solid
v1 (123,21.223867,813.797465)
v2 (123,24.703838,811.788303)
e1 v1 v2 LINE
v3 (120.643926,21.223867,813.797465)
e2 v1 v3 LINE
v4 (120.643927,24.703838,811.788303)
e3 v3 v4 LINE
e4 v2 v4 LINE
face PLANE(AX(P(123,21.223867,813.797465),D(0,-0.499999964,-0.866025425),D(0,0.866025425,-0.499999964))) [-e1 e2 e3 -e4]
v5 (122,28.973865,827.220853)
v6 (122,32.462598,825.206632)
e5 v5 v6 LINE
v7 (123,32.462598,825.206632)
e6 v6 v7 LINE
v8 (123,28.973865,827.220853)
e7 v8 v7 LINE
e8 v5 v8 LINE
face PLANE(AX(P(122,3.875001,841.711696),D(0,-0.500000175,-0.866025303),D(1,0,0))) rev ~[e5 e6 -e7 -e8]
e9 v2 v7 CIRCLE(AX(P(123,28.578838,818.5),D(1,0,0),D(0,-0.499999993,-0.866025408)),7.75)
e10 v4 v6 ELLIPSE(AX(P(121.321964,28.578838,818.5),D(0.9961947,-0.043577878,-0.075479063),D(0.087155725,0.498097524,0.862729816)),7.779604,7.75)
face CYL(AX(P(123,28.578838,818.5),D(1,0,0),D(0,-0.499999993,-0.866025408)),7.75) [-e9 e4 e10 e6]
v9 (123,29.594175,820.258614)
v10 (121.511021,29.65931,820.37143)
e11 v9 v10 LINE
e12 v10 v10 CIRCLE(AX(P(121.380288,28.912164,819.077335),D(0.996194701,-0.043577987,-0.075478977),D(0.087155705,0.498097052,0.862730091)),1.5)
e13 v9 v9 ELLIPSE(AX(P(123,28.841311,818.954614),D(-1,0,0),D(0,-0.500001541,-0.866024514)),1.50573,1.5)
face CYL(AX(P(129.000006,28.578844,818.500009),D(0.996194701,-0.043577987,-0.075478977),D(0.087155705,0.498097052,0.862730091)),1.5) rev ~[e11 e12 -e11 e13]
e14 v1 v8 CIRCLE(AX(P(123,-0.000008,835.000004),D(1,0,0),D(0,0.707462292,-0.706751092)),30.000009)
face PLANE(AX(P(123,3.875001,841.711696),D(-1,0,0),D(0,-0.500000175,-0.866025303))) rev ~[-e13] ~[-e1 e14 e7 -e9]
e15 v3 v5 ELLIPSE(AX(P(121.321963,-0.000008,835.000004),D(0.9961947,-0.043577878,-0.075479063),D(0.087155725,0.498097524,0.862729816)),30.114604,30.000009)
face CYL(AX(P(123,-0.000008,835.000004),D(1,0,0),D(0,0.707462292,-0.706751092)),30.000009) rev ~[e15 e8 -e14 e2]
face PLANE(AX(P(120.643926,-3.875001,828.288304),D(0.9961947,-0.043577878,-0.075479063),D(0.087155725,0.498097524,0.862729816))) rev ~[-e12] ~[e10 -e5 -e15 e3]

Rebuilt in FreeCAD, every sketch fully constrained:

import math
import FreeCAD as App
import Part
import Sketcher
from FreeCAD import Vector
Q = App.Units.Quantity


def add_polygon(sketch, points):
    """Adds a closed chain of lines whose ends are joined by coincident constraints."""
    first, n = sketch.GeometryCount, len(points)
    for a, b in zip(points, points[1:] + points[:1]):
        sketch.addGeometry(Part.LineSegment(App.Vector(*a, 0), App.Vector(*b, 0)), False)
    for i in range(n):
        sketch.addConstraint(Sketcher.Constraint("Coincident", first + i, 2, first + (i + 1) % n, 1))

doc = App.newDocument("Part")
body = doc.addObject("PartDesign::Body", "Body")

# Sketch on an angled plane
sketch1 = body.newObject("Sketcher::SketchObject", "Sketch")
sketch1.Placement = App.Placement(Vector(6, 0, 0), App.Rotation(Vector(1, 0, 0), Vector(0, 0.500000175, 0.866025303), Vector(0, -0.866025303, 0.500000175), "ZXY"))
add_polygon(sketch1, [(-6, -7.8), (-6, 7.8), (-7, 7.8), (-8.4, -7.8)])  # lines 0-3
sketch1.addConstraint(Sketcher.Constraint("Vertical", 0))
sketch1.addConstraint(Sketcher.Constraint("Horizontal", 1))
sketch1.addConstraint(Sketcher.Constraint("Horizontal", 3))
sketch1.addConstraint(Sketcher.Constraint("DistanceX", 1, 2, 1, 1, Q("1 mm")))
sketch1.addConstraint(Sketcher.Constraint("Angle", 2, Q("-94.999999 deg")))
sketch1.addConstraint(Sketcher.Constraint("DistanceY", 0, 1, 0, 2, Q("15.5 mm")))
sketch1.addConstraint(Sketcher.Constraint("DistanceX", 0, 2, -1, 1, Q("6 mm")))
sketch1.addConstraint(Sketcher.Constraint("DistanceY", -1, 1, 0, 2, Q("7.75 mm")))
pad1 = body.newObject("PartDesign::Pad", "Pad")
pad1.Profile = sketch1
pad1.Length = 42
pad1.Reversed = True

# Sketch on YZ plane
sketch2 = body.newObject("Sketcher::SketchObject", "Sketch001")
sketch2.AttachmentSupport = (doc.getObject("YZ_Plane"), [""])
sketch2.MapMode = "FlatFace"
add_polygon(sketch2, [(-9.7, 8.1), (-9.7, -33.2), (41.7, -33.2), (41.7, 8.1)])  # lines 0-3
sketch2.addGeometry(Part.LineSegment(Vector(24.7, -23.2, 0), Vector(21.2, -21.2, 0)), False)  # 4
sketch2.addGeometry(Part.ArcOfCircle(Part.Circle(Vector(0, 0, 0), Vector(0, 0, 1), 30), math.radians(-45), math.radians(-15)), False)  # 5
sketch2.addGeometry(Part.LineSegment(Vector(29, -7.8, 0), Vector(32.5, -9.8, 0)), False)  # 6
sketch2.addGeometry(Part.ArcOfCircle(Part.Circle(Vector(28.6, -16.5, 0), Vector(0, 0, 1), 7.8), math.radians(-120), math.radians(60)), False)  # 7
sketch2.addConstraint(Sketcher.Constraint("Coincident", 4, 2, 5, 1))
sketch2.addConstraint(Sketcher.Constraint("Coincident", 5, 2, 6, 1))
sketch2.addConstraint(Sketcher.Constraint("Tangent", 6, 2, 7, 2))
sketch2.addConstraint(Sketcher.Constraint("Tangent", 7, 1, 4, 1))
sketch2.addConstraint(Sketcher.Constraint("Vertical", 0))
sketch2.addConstraint(Sketcher.Constraint("Horizontal", 1))
sketch2.addConstraint(Sketcher.Constraint("Vertical", 2))
sketch2.addConstraint(Sketcher.Constraint("Horizontal", 3))
sketch2.addConstraint(Sketcher.Constraint("Coincident", 5, 3, -1, 1))
sketch2.addConstraint(Sketcher.Constraint("Parallel", 4, 6))
sketch2.addConstraint(Sketcher.Constraint("Equal", 4, 6))
sketch2.addConstraint(Sketcher.Constraint("Angle", 4, Q("150.000002 deg")))
sketch2.addConstraint(Sketcher.Constraint("Radius", 7, Q("7.75 mm")))
sketch2.addConstraint(Sketcher.Constraint("DistanceY", 7, 3, -1, 1, Q("16.5 mm")))
sketch2.addConstraint(Sketcher.Constraint("Radius", 5, Q("30.000009 mm")))
sketch2.addConstraint(Sketcher.Constraint("DistanceX", 1, 1, 1, 2, Q("51.449978 mm")))
sketch2.addConstraint(Sketcher.Constraint("DistanceY", 0, 2, 0, 1, Q("41.216857 mm")))
sketch2.addConstraint(Sketcher.Constraint("DistanceX", 0, 2, -1, 1, Q("9.71447 mm")))
sketch2.addConstraint(Sketcher.Constraint("DistanceY", 0, 2, 5, 3, Q("33.150088 mm")))
pocket1 = body.newObject("PartDesign::Pocket", "Pocket")
pocket1.Profile = sketch2
pocket1.Type = "ThroughAll"
pocket1.Midplane = True

# Sketch on an angled plane
sketch3 = body.newObject("Sketcher::SketchObject", "Sketch002")
sketch3.Placement = App.Placement(Vector(6, 0, 0), App.Rotation(Vector(0.087155705, 0.498097052, 0.862730091), Vector(-0.000000185, -0.866025569, 0.499999714), Vector(0.996194701, -0.043577987, -0.075478977), "ZXY"))
sketch3.addGeometry(Part.Circle(Vector(0, -33, 0), Vector(0, 0, 1), 1.5), False)
sketch3.addConstraint(Sketcher.Constraint("PointOnObject", 0, 3, -2))
sketch3.addConstraint(Sketcher.Constraint("Diameter", 0, Q("3 mm")))
sketch3.addConstraint(Sketcher.Constraint("DistanceY", 0, 3, -1, 1, Q("33 mm")))
pocket2 = body.newObject("PartDesign::Pocket", "Pocket001")
pocket2.Profile = sketch3
pocket2.Type = "ThroughAll"
pocket2.Midplane = True
body2 = doc.addObject("PartDesign::Body", "Body001")
doc.recompute()

body.Placement = App.Placement(Vector(123, 0, 835), App.Rotation(Vector(0, 0, 1), 0))
boolean = body2.newObject("PartDesign::Boolean", "Boolean")
boolean.Type = "Fuse"
boolean.addObjects([body])

doc.recompute()
